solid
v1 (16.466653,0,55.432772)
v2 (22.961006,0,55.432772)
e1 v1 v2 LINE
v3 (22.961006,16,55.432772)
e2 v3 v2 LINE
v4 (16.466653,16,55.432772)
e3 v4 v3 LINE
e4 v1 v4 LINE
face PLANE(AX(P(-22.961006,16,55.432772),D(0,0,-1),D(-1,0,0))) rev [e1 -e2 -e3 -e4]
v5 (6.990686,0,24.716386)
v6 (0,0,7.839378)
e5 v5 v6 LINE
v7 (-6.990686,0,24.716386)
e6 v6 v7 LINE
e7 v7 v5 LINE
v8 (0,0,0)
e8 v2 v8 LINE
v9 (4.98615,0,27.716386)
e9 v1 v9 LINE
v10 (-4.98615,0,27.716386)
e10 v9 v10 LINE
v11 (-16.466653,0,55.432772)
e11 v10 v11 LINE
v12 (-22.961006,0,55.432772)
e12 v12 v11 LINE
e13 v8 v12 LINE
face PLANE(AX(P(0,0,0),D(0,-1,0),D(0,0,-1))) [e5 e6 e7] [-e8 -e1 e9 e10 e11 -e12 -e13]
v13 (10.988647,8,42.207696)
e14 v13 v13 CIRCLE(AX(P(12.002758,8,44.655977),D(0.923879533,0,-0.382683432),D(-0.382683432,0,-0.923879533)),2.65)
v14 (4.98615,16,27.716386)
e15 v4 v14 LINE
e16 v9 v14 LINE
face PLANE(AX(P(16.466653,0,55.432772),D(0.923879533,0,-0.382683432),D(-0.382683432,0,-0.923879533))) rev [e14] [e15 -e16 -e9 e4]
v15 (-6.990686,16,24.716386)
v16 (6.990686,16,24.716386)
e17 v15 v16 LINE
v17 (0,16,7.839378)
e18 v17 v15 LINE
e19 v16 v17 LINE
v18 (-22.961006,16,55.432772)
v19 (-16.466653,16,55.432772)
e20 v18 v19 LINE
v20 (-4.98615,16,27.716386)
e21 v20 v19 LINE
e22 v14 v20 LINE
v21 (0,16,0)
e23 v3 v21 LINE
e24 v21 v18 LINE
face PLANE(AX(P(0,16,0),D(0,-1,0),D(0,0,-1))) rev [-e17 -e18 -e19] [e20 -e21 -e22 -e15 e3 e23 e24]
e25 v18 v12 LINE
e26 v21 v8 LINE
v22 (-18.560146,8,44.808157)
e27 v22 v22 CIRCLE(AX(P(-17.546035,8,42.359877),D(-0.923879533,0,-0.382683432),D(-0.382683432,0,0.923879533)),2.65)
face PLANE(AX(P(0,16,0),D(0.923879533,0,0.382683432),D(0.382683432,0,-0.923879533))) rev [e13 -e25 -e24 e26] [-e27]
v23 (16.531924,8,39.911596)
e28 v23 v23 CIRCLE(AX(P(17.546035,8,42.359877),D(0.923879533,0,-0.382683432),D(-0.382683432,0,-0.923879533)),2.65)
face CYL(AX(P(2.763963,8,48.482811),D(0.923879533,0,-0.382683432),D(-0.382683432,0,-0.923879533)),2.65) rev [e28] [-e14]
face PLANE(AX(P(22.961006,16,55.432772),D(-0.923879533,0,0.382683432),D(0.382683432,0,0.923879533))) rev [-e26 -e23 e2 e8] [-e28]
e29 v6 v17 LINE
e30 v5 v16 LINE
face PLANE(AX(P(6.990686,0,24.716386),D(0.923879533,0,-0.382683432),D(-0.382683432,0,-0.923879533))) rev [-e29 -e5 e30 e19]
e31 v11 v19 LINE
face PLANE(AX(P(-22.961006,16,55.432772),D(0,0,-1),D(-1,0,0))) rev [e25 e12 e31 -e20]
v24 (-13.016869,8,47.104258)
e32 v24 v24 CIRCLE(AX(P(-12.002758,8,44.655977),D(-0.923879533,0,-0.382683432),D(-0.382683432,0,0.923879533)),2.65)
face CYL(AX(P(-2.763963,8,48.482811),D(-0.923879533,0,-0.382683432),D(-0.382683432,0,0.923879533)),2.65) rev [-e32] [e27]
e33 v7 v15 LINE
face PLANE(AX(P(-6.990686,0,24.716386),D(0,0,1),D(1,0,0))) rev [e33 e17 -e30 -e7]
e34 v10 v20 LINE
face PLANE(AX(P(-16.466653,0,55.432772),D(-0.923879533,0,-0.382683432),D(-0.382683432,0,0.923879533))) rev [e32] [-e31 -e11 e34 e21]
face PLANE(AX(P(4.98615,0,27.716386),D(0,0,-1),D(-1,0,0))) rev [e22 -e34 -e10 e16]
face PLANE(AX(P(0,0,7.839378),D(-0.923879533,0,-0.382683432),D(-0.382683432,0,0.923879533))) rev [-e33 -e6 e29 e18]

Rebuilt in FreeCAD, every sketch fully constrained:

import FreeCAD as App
import Part
import Sketcher

V = App.Vector
Q = App.Units.Quantity


def add_polygon(sketch, points):
    """Adds a closed chain of lines whose ends are joined by coincident constraints."""
    first, n = sketch.GeometryCount, len(points)
    for a, b in zip(points, points[1:] + points[:1]):
        sketch.addGeometry(Part.LineSegment(App.Vector(*a, 0), App.Vector(*b, 0)), False)
    for i in range(n):
        sketch.addConstraint(Sketcher.Constraint("Coincident", first + i, 2, first + (i + 1) % n, 1))

doc = App.newDocument("Part")
params = doc.addObject("Spreadsheet::Sheet", "Params")
for row, (alias, value) in enumerate([
    ("sketch1_length", "60 mm"),
    ("pad1_length", "16 mm"),
    ("sketch2_length", "30 mm"),
    ("pocket1_length", "16 mm"),
    ("sketch3_diameter", "5.3 mm"),
    ("pocket2_length", "16 mm"),
    ("sketch4_diameter", "5.3 mm"),
    ("pocket3_length", "16 mm"),
], start=1):
    params.set(f"A{row}", alias)
    params.set(f"B{row}", "=" + value)
    params.setAlias(f"B{row}", alias)

body = doc.addObject("PartDesign::Body", "Body")

# Sketch on XZ plane
sketch1 = doc.addObject("Sketcher::SketchObject", "Sketch")
body.addObject(sketch1)
sketch1.AttachmentSupport = (doc.XZ_Plane, [""])
sketch1.MapMode = "FlatFace"
add_polygon(sketch1, [(0, 0), (-23, 55), (23, 55)])  # lines 0-2
sketch1.addConstraint([
    Sketcher.Constraint("Horizontal", 1),
    Sketcher.Constraint("Coincident", 2, 2, -1, 1),
    Sketcher.Constraint("Equal", 0, 2),
    Sketcher.Constraint("Distance", 0, Q("60 mm")),
    Sketcher.Constraint("Angle", 0, Q("112.5 deg")),
])
sketch1.setExpression("Constraints[6]", "Params.sketch1_length")
pad1 = doc.addObject("PartDesign::Pad", "Pad")
body.addObject(pad1)
pad1.Profile = sketch1
pad1.setExpression("Length", "Params.pad1_length")
pad1.Reversed = True

# Sketch on XZ plane
sketch2 = doc.addObject("Sketcher::SketchObject", "Sketch001")
body.addObject(sketch2)
sketch2.AttachmentSupport = (doc.XZ_Plane, [""])
sketch2.MapMode = "FlatFace"
sketch2.AttachmentOffset = App.Placement(V(0, 0, -16), App.Rotation())
add_polygon(sketch2, [(-5, 28), (-16, 55), (16, 55), (5, 28)])  # lines 0-3
add_polygon(sketch2, [(-7, 25), (7, 25), (0, 8)])  # lines 4-6
sketch2.addConstraint([
    Sketcher.Constraint("Horizontal", 1),
    Sketcher.Constraint("Horizontal", 3),
    Sketcher.Constraint("Horizontal", 4),
    Sketcher.Constraint("PointOnObject", 5, 2, -2),
    Sketcher.Constraint("Parallel", 2, 5),
    Sketcher.Constraint("Parallel", 0, 6),
    Sketcher.Constraint("Equal", 0, 2),
    Sketcher.Constraint("Distance", 0, Q("30 mm")),
    Sketcher.Constraint("Angle", 0, Q("112.5 deg")),
    Sketcher.Constraint("DistanceY", 4, 2, 2, 2, Q("3 mm")),
    Sketcher.Constraint("DistanceX", 3, 2, 3, 1, Q("9.9723 mm")),
    Sketcher.Constraint("DistanceX", 4, 1, 4, 2, Q("13.981371 mm")),
    Sketcher.Constraint("DistanceY", -1, 1, 0, 2, Q("55.432772 mm")),
    Sketcher.Constraint("DistanceX", -1, 1, 2, 2, Q("4.98615 mm")),
])
sketch2.setExpression("Constraints[14]", "Params.sketch2_length")
pocket1 = doc.addObject("PartDesign::Pocket", "Pocket")
body.addObject(pocket1)
pocket1.Profile = sketch2
pocket1.setExpression("Length", "Params.pocket1_length")
pocket1.Reversed = True

# Sketch on an angled plane
sketch3 = doc.addObject("Sketcher::SketchObject", "Sketch002")
body.addObject(sketch3)
sketch3.Placement = App.Placement(V(0, 0, 0), App.Rotation(V(-0.382683432, 0, -0.923879533), V(0, 1.000000001, 0), V(0.923879533, 0, -0.382683432), "ZXY"))
sketch3.addGeometry(Part.Circle(V(-45.9, 8, 0), V(0, 0, 1), 2.6), False)
sketch3.addConstraint([
    Sketcher.Constraint("Diameter", 0, Q("5.3 mm")),
    Sketcher.Constraint("DistanceY", -1, 1, 0, 3, Q("8 mm")),
    Sketcher.Constraint("DistanceX", 0, 3, -1, 1, Q("45.85 mm")),
])
sketch3.setExpression("Constraints[0]", "Params.sketch3_diameter")
pocket2 = doc.addObject("PartDesign::Pocket", "Pocket001")
body.addObject(pocket2)
pocket2.Profile = sketch3
pocket2.setExpression("Length", "Params.pocket2_length")

# Sketch on an angled plane
sketch4 = doc.addObject("Sketcher::SketchObject", "Sketch003")
body.addObject(sketch4)
sketch4.Placement = App.Placement(V(0, 0, 0), App.Rotation(V(-0.382683432, 0, 0.923879533), V(0, 1.000000001, 0), V(-0.923879533, 0, -0.382683432), "ZXY"))
sketch4.addGeometry(Part.Circle(V(45.9, 8, 0), V(0, 0, 1), 2.6), False)
sketch4.addConstraint([
    Sketcher.Constraint("Diameter", 0, Q("5.3 mm")),
    Sketcher.Constraint("DistanceY", -1, 1, 0, 3, Q("8 mm")),
    Sketcher.Constraint("DistanceX", -1, 1, 0, 3, Q("45.85 mm")),
])
sketch4.setExpression("Constraints[0]", "Params.sketch4_diameter")
pocket3 = doc.addObject("PartDesign::Pocket", "Pocket002")
body.addObject(pocket3)
pocket3.Profile = sketch4
pocket3.setExpression("Length", "Params.pocket3_length")

doc.recompute()
